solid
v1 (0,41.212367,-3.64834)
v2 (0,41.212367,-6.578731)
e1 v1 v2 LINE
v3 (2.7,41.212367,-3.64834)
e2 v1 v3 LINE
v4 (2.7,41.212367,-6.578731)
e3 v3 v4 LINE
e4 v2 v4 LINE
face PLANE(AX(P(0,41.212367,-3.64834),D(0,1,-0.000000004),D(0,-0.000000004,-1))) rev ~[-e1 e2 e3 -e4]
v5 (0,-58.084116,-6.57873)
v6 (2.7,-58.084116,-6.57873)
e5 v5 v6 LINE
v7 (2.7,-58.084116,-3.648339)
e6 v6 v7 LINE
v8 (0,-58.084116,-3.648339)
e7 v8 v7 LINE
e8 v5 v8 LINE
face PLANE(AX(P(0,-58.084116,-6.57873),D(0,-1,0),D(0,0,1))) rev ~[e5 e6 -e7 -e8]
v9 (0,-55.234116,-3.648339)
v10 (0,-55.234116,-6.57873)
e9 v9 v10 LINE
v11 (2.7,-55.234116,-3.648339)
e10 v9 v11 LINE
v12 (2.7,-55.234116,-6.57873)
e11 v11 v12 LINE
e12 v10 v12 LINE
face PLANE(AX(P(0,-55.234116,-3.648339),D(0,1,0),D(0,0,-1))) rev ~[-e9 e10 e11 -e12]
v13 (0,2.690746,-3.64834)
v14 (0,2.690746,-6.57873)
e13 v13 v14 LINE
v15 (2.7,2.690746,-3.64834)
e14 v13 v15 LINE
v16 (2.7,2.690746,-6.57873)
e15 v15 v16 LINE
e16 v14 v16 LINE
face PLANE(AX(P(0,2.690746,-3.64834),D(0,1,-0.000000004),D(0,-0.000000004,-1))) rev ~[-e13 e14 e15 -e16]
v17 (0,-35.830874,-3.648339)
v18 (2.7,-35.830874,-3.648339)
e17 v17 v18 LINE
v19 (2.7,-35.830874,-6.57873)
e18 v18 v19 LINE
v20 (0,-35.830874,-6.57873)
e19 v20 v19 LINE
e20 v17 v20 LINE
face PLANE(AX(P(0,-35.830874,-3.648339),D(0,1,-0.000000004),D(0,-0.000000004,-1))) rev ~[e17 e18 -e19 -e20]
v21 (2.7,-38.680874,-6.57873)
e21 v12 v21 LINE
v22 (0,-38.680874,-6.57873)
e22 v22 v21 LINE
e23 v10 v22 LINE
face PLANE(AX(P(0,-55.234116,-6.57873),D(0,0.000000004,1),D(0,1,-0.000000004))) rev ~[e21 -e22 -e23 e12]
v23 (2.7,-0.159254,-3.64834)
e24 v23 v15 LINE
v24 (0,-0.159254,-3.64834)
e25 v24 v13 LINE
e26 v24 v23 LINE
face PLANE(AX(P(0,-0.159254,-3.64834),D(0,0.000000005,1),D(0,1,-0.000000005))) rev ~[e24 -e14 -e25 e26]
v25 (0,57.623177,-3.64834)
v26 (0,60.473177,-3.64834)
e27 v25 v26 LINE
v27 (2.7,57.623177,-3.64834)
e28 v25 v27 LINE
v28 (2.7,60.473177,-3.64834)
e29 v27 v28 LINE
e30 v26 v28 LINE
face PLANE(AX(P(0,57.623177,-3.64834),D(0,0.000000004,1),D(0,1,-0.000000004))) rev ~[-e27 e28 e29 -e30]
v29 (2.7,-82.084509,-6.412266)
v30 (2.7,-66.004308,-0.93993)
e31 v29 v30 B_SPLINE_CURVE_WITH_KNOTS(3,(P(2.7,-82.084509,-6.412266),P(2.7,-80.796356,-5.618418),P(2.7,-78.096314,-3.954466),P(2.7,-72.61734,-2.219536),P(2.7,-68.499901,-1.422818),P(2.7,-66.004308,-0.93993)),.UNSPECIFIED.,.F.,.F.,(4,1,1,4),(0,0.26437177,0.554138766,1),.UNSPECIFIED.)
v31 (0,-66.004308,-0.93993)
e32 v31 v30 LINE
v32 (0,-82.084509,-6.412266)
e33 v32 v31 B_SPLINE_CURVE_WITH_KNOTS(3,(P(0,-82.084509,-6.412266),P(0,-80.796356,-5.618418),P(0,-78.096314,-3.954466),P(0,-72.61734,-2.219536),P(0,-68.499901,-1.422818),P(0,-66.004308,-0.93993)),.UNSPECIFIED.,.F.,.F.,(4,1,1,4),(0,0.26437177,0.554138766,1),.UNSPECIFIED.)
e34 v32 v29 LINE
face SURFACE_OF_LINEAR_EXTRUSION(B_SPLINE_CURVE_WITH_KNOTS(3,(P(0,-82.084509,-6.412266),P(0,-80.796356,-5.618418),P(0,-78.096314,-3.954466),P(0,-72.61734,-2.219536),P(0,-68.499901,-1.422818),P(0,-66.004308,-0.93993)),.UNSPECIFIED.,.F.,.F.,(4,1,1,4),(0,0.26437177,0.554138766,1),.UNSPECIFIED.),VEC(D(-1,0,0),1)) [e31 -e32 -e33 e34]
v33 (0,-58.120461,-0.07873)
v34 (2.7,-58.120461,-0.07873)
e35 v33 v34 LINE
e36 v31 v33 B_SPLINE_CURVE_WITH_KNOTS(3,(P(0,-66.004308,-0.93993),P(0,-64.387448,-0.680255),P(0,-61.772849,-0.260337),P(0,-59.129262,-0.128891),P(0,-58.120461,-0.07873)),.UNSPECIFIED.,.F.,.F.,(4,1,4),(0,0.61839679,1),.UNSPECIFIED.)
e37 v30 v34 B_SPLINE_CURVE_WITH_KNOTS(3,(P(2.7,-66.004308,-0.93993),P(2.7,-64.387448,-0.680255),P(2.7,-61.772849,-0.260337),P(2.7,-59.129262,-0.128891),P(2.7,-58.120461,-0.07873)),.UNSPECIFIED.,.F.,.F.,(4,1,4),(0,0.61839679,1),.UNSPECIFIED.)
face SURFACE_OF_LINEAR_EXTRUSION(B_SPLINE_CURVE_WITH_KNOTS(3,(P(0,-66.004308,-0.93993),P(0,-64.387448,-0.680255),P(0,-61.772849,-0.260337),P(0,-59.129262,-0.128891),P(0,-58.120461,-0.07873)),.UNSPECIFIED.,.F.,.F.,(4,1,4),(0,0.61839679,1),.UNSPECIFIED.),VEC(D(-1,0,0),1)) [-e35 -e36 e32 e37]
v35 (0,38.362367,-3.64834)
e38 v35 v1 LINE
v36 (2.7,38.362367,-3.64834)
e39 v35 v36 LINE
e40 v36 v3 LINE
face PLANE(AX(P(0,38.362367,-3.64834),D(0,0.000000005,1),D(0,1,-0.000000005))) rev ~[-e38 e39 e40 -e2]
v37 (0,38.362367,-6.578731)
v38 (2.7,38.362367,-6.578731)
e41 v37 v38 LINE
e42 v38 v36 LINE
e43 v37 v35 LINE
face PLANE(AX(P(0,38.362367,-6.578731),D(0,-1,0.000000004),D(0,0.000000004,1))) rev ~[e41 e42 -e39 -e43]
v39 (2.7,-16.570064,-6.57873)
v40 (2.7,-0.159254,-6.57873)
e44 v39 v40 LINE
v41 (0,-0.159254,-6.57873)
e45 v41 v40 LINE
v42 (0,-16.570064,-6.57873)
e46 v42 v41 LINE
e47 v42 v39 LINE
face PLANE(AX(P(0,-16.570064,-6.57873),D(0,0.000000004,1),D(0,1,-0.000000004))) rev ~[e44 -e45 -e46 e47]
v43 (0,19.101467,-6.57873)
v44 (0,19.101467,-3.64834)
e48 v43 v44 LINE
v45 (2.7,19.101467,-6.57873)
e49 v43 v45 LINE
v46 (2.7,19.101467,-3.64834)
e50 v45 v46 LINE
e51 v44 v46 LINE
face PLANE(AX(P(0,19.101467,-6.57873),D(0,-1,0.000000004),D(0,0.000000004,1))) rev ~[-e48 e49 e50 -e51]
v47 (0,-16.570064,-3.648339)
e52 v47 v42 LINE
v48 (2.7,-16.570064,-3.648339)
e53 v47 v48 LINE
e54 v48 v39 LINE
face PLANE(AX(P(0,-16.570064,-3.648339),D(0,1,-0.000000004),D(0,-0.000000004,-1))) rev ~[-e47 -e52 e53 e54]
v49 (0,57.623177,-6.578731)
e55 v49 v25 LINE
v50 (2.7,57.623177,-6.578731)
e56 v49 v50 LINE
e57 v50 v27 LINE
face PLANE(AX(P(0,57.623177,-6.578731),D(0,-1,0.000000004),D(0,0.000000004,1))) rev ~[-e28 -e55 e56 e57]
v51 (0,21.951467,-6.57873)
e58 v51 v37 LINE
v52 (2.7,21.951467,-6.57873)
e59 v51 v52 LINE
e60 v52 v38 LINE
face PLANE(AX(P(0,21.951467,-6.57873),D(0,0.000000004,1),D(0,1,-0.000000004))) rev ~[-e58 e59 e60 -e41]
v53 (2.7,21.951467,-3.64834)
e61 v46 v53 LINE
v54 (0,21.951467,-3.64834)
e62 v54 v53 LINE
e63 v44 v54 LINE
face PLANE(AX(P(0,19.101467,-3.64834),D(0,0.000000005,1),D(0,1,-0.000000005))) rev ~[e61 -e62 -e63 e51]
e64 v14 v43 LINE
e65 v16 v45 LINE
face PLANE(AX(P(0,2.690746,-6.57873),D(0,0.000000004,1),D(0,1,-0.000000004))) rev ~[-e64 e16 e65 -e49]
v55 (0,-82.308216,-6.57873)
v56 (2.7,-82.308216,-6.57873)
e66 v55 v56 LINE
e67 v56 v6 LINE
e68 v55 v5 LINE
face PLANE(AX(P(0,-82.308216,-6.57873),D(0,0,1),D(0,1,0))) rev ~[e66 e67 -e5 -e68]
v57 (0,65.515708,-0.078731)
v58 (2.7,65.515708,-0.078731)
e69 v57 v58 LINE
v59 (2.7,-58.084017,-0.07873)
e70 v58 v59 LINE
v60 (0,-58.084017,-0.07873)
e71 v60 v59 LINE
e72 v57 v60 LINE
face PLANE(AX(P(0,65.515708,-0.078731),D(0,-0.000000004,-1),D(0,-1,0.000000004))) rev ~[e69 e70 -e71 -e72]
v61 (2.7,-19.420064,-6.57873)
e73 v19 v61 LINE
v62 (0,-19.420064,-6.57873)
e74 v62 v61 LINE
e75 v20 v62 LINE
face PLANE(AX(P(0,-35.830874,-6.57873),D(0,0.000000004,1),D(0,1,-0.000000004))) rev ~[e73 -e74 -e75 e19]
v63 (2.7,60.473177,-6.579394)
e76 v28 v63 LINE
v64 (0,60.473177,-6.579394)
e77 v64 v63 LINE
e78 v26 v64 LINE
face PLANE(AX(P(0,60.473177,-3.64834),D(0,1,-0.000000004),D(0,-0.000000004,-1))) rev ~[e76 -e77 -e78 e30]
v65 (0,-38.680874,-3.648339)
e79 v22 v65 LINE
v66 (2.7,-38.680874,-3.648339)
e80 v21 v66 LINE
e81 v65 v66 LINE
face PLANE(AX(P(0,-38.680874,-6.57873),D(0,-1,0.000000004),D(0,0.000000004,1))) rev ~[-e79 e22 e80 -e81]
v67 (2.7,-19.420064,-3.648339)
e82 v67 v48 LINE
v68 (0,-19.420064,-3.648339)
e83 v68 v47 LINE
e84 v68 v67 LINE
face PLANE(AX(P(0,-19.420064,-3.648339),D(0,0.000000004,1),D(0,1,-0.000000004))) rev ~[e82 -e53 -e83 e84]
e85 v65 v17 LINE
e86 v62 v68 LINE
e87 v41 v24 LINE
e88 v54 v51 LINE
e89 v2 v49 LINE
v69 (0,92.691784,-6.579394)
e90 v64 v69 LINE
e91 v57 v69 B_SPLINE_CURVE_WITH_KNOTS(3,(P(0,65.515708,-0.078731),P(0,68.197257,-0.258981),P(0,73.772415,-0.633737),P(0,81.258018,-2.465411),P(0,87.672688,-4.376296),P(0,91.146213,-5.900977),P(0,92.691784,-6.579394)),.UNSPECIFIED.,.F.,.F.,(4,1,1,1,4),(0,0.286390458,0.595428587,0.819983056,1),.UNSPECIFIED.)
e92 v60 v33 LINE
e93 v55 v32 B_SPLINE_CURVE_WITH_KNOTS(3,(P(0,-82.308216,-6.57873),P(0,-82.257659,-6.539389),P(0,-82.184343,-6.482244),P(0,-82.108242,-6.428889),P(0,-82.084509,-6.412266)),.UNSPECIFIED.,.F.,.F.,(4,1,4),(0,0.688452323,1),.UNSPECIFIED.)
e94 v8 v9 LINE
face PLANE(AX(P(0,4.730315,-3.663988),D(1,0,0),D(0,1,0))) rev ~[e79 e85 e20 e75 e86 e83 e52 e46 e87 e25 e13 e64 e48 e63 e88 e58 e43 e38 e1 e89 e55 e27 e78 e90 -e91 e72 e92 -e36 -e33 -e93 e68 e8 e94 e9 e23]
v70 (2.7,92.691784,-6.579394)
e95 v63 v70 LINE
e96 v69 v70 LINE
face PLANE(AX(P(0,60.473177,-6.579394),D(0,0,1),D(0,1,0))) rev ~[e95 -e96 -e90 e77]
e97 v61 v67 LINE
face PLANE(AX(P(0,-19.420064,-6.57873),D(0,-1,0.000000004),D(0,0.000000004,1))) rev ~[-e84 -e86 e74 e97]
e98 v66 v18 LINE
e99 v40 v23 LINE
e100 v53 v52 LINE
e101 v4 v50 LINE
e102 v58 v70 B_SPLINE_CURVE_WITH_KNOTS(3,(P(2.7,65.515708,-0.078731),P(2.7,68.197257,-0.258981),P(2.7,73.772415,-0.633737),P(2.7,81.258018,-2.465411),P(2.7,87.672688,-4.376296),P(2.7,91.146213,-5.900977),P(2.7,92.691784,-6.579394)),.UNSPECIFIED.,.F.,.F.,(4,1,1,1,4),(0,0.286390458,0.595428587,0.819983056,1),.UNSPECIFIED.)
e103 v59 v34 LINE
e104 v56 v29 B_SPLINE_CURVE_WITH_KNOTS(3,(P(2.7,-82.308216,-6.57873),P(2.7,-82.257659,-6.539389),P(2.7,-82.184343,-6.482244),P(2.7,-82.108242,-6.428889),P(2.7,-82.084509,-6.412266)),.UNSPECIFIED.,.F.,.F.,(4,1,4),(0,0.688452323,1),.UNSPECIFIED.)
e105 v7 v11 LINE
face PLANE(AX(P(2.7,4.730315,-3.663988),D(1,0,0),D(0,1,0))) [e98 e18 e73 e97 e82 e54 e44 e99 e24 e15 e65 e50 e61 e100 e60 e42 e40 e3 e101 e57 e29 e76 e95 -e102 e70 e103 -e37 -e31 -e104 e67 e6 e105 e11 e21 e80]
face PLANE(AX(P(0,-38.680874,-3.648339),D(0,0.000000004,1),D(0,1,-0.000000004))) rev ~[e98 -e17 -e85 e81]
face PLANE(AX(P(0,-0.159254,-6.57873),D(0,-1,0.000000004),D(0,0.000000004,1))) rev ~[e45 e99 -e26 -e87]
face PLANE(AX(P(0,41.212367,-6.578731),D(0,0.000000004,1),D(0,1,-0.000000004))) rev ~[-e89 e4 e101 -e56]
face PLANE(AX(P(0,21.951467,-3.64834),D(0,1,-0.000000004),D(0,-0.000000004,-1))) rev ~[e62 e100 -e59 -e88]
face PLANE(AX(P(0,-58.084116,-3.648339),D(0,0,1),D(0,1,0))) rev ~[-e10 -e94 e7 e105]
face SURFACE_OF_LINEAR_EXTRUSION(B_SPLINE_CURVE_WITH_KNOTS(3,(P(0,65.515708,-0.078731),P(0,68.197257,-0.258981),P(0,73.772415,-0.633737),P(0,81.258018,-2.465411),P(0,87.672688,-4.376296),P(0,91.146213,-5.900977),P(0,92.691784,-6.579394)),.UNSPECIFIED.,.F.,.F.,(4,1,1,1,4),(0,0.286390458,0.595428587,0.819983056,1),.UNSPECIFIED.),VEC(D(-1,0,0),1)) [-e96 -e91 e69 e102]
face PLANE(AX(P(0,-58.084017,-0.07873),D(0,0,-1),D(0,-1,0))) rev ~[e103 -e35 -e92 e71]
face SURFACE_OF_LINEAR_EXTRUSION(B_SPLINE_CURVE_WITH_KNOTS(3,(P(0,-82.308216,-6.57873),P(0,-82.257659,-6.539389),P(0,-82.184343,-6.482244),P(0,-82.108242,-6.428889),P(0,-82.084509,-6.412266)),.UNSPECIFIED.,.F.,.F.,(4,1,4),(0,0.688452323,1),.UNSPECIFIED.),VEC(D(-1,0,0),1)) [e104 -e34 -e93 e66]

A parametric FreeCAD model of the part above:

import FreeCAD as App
import Part
import Sketcher
from FreeCAD import Vector

doc = App.newDocument("Part")
body = doc.addObject("PartDesign::Body", "Body")

sketch1 = body.newObject("Sketcher::SketchObject", "Sketch")
sketch1.AttachmentSupport = (doc.getObject("YZ_Plane"), [""])
sketch1.MapMode = "FlatFace"
sketch1.addGeometry(Part.LineSegment(Vector(-55.234116, -6.57873, 0), Vector(-38.680874, -6.57873, 0)), False)
sketch1.addGeometry(Part.LineSegment(Vector(-38.680874, -6.57873, 0), Vector(-38.680874, -3.648339, 0)), False)
sketch1.addGeometry(Part.LineSegment(Vector(-38.680874, -3.648339, 0), Vector(-35.830874, -3.648339, 0)), False)
sketch1.addGeometry(Part.LineSegment(Vector(-35.830874, -3.648339, 0), Vector(-35.830874, -6.57873, 0)), False)
sketch1.addGeometry(Part.LineSegment(Vector(-35.830874, -6.57873, 0), Vector(-19.420064, -6.57873, 0)), False)
sketch1.addGeometry(Part.LineSegment(Vector(-19.420064, -6.57873, 0), Vector(-19.420064, -3.648339, 0)), False)
sketch1.addGeometry(Part.LineSegment(Vector(-19.420064, -3.648339, 0), Vector(-16.570064, -3.648339, 0)), False)
sketch1.addGeometry(Part.LineSegment(Vector(-16.570064, -3.648339, 0), Vector(-16.570064, -6.57873, 0)), False)
sketch1.addGeometry(Part.LineSegment(Vector(-16.570064, -6.57873, 0), Vector(-0.159254, -6.57873, 0)), False)
sketch1.addGeometry(Part.LineSegment(Vector(-0.159254, -6.57873, 0), Vector(-0.159254, -3.64834, 0)), False)
sketch1.addGeometry(Part.LineSegment(Vector(-0.159254, -3.64834, 0), Vector(2.690746, -3.64834, 0)), False)
sketch1.addGeometry(Part.LineSegment(Vector(2.690746, -3.64834, 0), Vector(2.690746, -6.57873, 0)), False)
sketch1.addGeometry(Part.LineSegment(Vector(2.690746, -6.57873, 0), Vector(19.101467, -6.57873, 0)), False)
sketch1.addGeometry(Part.LineSegment(Vector(19.101467, -6.57873, 0), Vector(19.101467, -3.64834, 0)), False)
sketch1.addGeometry(Part.LineSegment(Vector(19.101467, -3.64834, 0), Vector(21.951467, -3.64834, 0)), False)
sketch1.addGeometry(Part.LineSegment(Vector(21.951467, -3.64834, 0), Vector(21.951467, -6.57873, 0)), False)
sketch1.addGeometry(Part.LineSegment(Vector(21.951467, -6.57873, 0), Vector(38.362367, -6.578731, 0)), False)
sketch1.addGeometry(Part.LineSegment(Vector(38.362367, -6.578731, 0), Vector(38.362367, -3.64834, 0)), False)
sketch1.addGeometry(Part.LineSegment(Vector(38.362367, -3.64834, 0), Vector(41.212367, -3.64834, 0)), False)
sketch1.addGeometry(Part.LineSegment(Vector(41.212367, -3.64834, 0), Vector(41.212367, -6.578731, 0)), False)
sketch1.addGeometry(Part.LineSegment(Vector(41.212367, -6.578731, 0), Vector(57.623177, -6.578731, 0)), False)
sketch1.addGeometry(Part.LineSegment(Vector(57.623177, -6.578731, 0), Vector(57.623177, -3.64834, 0)), False)
sketch1.addGeometry(Part.LineSegment(Vector(57.623177, -3.64834, 0), Vector(60.473177, -3.64834, 0)), False)
sketch1.addGeometry(Part.LineSegment(Vector(60.473177, -3.64834, 0), Vector(60.473177, -6.579394, 0)), False)
sketch1.addGeometry(Part.LineSegment(Vector(60.473177, -6.579394, 0), Vector(92.691784, -6.579394, 0)), False)
sketch1.addGeometry(Part.BSplineCurve([Vector(65.515708, -0.078731, 0), Vector(68.197257, -0.258981, 0), Vector(73.772415, -0.633737, 0), Vector(81.258018, -2.465411, 0), Vector(87.672688, -4.376296, 0), Vector(91.146213, -5.900977, 0), Vector(92.691784, -6.579394, 0)], [4, 1, 1, 1, 4], [0, 0.286390458, 0.595428587, 0.819983056, 1], False, 3, [1, 1, 1, 1, 1, 1, 1], False), False)
sketch1.addGeometry(Part.LineSegment(Vector(65.515708, -0.078731, 0), Vector(-58.084017, -0.07873, 0)), False)
sketch1.addGeometry(Part.LineSegment(Vector(-58.084017, -0.07873, 0), Vector(-58.120461, -0.07873, 0)), False)
sketch1.addGeometry(Part.BSplineCurve([Vector(-66.004308, -0.93993, 0), Vector(-64.387448, -0.680255, 0), Vector(-61.772849, -0.260337, 0), Vector(-59.129262, -0.128891, 0), Vector(-58.120461, -0.07873, 0)], [4, 1, 4], [0, 0.61839679, 1], False, 3, [1, 1, 1, 1, 1], False), False)
sketch1.addGeometry(Part.BSplineCurve([Vector(-82.084509, -6.412266, 0), Vector(-80.796356, -5.618418, 0), Vector(-78.096314, -3.954466, 0), Vector(-72.61734, -2.219536, 0), Vector(-68.499901, -1.422818, 0), Vector(-66.004308, -0.93993, 0)], [4, 1, 1, 4], [0, 0.26437177, 0.554138766, 1], False, 3, [1, 1, 1, 1, 1, 1], False), False)
sketch1.addGeometry(Part.BSplineCurve([Vector(-82.308216, -6.57873, 0), Vector(-82.257659, -6.539389, 0), Vector(-82.184343, -6.482244, 0), Vector(-82.108242, -6.428889, 0), Vector(-82.084509, -6.412266, 0)], [4, 1, 4], [0, 0.688452323, 1], False, 3, [1, 1, 1, 1, 1], False), False)
sketch1.addGeometry(Part.LineSegment(Vector(-82.308216, -6.57873, 0), Vector(-58.084116, -6.57873, 0)), False)
sketch1.addGeometry(Part.LineSegment(Vector(-58.084116, -6.57873, 0), Vector(-58.084116, -3.648339, 0)), False)
sketch1.addGeometry(Part.LineSegment(Vector(-58.084116, -3.648339, 0), Vector(-55.234116, -3.648339, 0)), False)
sketch1.addGeometry(Part.LineSegment(Vector(-55.234116, -3.648339, 0), Vector(-55.234116, -6.57873, 0)), False)
sketch1.addConstraint(Sketcher.Constraint("Block", 25))
sketch1.addConstraint(Sketcher.Constraint("Block", 28))
sketch1.addConstraint(Sketcher.Constraint("Block", 29))
sketch1.addConstraint(Sketcher.Constraint("Block", 30))
sketch1.addConstraint(Sketcher.Constraint("Coincident", 0, 2, 1, 1))
sketch1.addConstraint(Sketcher.Constraint("Coincident", 1, 2, 2, 1))
sketch1.addConstraint(Sketcher.Constraint("Coincident", 2, 2, 3, 1))
sketch1.addConstraint(Sketcher.Constraint("Coincident", 3, 2, 4, 1))
sketch1.addConstraint(Sketcher.Constraint("Coincident", 4, 2, 5, 1))
sketch1.addConstraint(Sketcher.Constraint("Coincident", 5, 2, 6, 1))
sketch1.addConstraint(Sketcher.Constraint("Coincident", 6, 2, 7, 1))
sketch1.addConstraint(Sketcher.Constraint("Coincident", 7, 2, 8, 1))
sketch1.addConstraint(Sketcher.Constraint("Coincident", 8, 2, 9, 1))
sketch1.addConstraint(Sketcher.Constraint("Coincident", 9, 2, 10, 1))
sketch1.addConstraint(Sketcher.Constraint("Coincident", 10, 2, 11, 1))
sketch1.addConstraint(Sketcher.Constraint("Coincident", 11, 2, 12, 1))
sketch1.addConstraint(Sketcher.Constraint("Coincident", 12, 2, 13, 1))
sketch1.addConstraint(Sketcher.Constraint("Coincident", 13, 2, 14, 1))
sketch1.addConstraint(Sketcher.Constraint("Coincident", 14, 2, 15, 1))
sketch1.addConstraint(Sketcher.Constraint("Coincident", 15, 2, 16, 1))
sketch1.addConstraint(Sketcher.Constraint("Coincident", 16, 2, 17, 1))
sketch1.addConstraint(Sketcher.Constraint("Coincident", 17, 2, 18, 1))
sketch1.addConstraint(Sketcher.Constraint("Coincident", 18, 2, 19, 1))
sketch1.addConstraint(Sketcher.Constraint("Coincident", 19, 2, 20, 1))
sketch1.addConstraint(Sketcher.Constraint("Coincident", 20, 2, 21, 1))
sketch1.addConstraint(Sketcher.Constraint("Coincident", 21, 2, 22, 1))
sketch1.addConstraint(Sketcher.Constraint("Coincident", 22, 2, 23, 1))
sketch1.addConstraint(Sketcher.Constraint("Coincident", 23, 2, 24, 1))
sketch1.addConstraint(Sketcher.Constraint("Coincident", 24, 2, 25, 2))
sketch1.addConstraint(Sketcher.Constraint("Coincident", 25, 1, 26, 1))
sketch1.addConstraint(Sketcher.Constraint("Coincident", 26, 2, 27, 1))
sketch1.addConstraint(Sketcher.Constraint("Coincident", 27, 2, 28, 2))
sketch1.addConstraint(Sketcher.Constraint("Coincident", 30, 1, 31, 1))
sketch1.addConstraint(Sketcher.Constraint("Coincident", 31, 2, 32, 1))
sketch1.addConstraint(Sketcher.Constraint("Coincident", 32, 2, 33, 1))
sketch1.addConstraint(Sketcher.Constraint("Coincident", 33, 2, 34, 1))
sketch1.addConstraint(Sketcher.Constraint("Coincident", 34, 2, 0, 1))
sketch1.addConstraint(Sketcher.Constraint("Horizontal", 0))
sketch1.addConstraint(Sketcher.Constraint("Vertical", 1))
sketch1.addConstraint(Sketcher.Constraint("Horizontal", 2))
sketch1.addConstraint(Sketcher.Constraint("Vertical", 3))
sketch1.addConstraint(Sketcher.Constraint("Horizontal", 4))
sketch1.addConstraint(Sketcher.Constraint("Vertical", 5))
sketch1.addConstraint(Sketcher.Constraint("Horizontal", 6))
sketch1.addConstraint(Sketcher.Constraint("Vertical", 7))
sketch1.addConstraint(Sketcher.Constraint("Horizontal", 8))
sketch1.addConstraint(Sketcher.Constraint("Vertical", 9))
sketch1.addConstraint(Sketcher.Constraint("Horizontal", 10))
sketch1.addConstraint(Sketcher.Constraint("Vertical", 11))
sketch1.addConstraint(Sketcher.Constraint("Horizontal", 12))
sketch1.addConstraint(Sketcher.Constraint("Vertical", 13))
sketch1.addConstraint(Sketcher.Constraint("Horizontal", 14))
sketch1.addConstraint(Sketcher.Constraint("Vertical", 15))
sketch1.addConstraint(Sketcher.Constraint("Horizontal", 16))
sketch1.addConstraint(Sketcher.Constraint("Vertical", 17))
sketch1.addConstraint(Sketcher.Constraint("Horizontal", 18))
sketch1.addConstraint(Sketcher.Constraint("Vertical", 19))
sketch1.addConstraint(Sketcher.Constraint("Horizontal", 20))
sketch1.addConstraint(Sketcher.Constraint("Vertical", 21))
sketch1.addConstraint(Sketcher.Constraint("Horizontal", 22))
sketch1.addConstraint(Sketcher.Constraint("Vertical", 23))
sketch1.addConstraint(Sketcher.Constraint("Horizontal", 24))
sketch1.addConstraint(Sketcher.Constraint("Horizontal", 26))
sketch1.addConstraint(Sketcher.Constraint("Horizontal", 31))
sketch1.addConstraint(Sketcher.Constraint("Vertical", 32))
sketch1.addConstraint(Sketcher.Constraint("Horizontal", 33))
sketch1.addConstraint(Sketcher.Constraint("Vertical", 34))
sketch1.addConstraint(Sketcher.Constraint("Horizontal", 0, 2, 3, 2))
sketch1.addConstraint(Sketcher.Constraint("Horizontal", 2, 2, 5, 2))
sketch1.addConstraint(Sketcher.Constraint("Horizontal", 4, 2, 7, 2))
sketch1.addConstraint(Sketcher.Constraint("Horizontal", 6, 2, 9, 2))
sketch1.addConstraint(Sketcher.Constraint("Horizontal", 8, 2, 11, 2))
sketch1.addConstraint(Sketcher.Constraint("Horizontal", 10, 2, 13, 2))
sketch1.addConstraint(Sketcher.Constraint("Horizontal", 12, 2, 15, 2))
sketch1.addConstraint(Sketcher.Constraint("Horizontal", 14, 2, 17, 2))
sketch1.addConstraint(Sketcher.Constraint("Horizontal", 16, 2, 19, 2))
sketch1.addConstraint(Sketcher.Constraint("Horizontal", 18, 2, 21, 2))
sketch1.addConstraint(Sketcher.Constraint("Horizontal", 20, 2, 31, 2))
sketch1.addConstraint(Sketcher.Constraint("Horizontal", 22, 2, 32, 2))
sketch1.addConstraint(Sketcher.Constraint("Equal", 2, 6))
sketch1.addConstraint(Sketcher.Constraint("Equal", 4, 8))
sketch1.addConstraint(Sketcher.Constraint("Equal", 6, 10))
sketch1.addConstraint(Sketcher.Constraint("Equal", 10, 14))
sketch1.addConstraint(Sketcher.Constraint("Equal", 14, 18))
sketch1.addConstraint(Sketcher.Constraint("Equal", 8, 20))
sketch1.addConstraint(Sketcher.Constraint("Equal", 18, 22))
sketch1.addConstraint(Sketcher.Constraint("Equal", 22, 33))
sketch1.addConstraint(Sketcher.Constraint("DistanceX", 2, 1, 2, 2, 2.85))
sketch1.addConstraint(Sketcher.Constraint("DistanceX", 16, 1, 16, 2, 16.410899))
sketch1.addConstraint(Sketcher.Constraint("DistanceX", 31, 1, 31, 2, 24.2241))
sketch1.addConstraint(Sketcher.Constraint("DistanceX", 0, 1, 0, 2, 16.553242))
sketch1.addConstraint(Sketcher.Constraint("DistanceX", 4, 1, 4, 2, 16.41081))
sketch1.addConstraint(Sketcher.Constraint("DistanceX", 12, 1, 12, 2, 16.410721))
sketch1.addConstraint(Sketcher.Constraint("DistanceY", 1, 1, 1, 2, 2.930391))
sketch1.addConstraint(Sketcher.Constraint("DistanceX", 26, 2, 33, 2, 2.849901))
pad1 = body.newObject("PartDesign::Pad", "Pad")
pad1.Profile = sketch1
pad1.Length = 2.7

doc.recompute()
